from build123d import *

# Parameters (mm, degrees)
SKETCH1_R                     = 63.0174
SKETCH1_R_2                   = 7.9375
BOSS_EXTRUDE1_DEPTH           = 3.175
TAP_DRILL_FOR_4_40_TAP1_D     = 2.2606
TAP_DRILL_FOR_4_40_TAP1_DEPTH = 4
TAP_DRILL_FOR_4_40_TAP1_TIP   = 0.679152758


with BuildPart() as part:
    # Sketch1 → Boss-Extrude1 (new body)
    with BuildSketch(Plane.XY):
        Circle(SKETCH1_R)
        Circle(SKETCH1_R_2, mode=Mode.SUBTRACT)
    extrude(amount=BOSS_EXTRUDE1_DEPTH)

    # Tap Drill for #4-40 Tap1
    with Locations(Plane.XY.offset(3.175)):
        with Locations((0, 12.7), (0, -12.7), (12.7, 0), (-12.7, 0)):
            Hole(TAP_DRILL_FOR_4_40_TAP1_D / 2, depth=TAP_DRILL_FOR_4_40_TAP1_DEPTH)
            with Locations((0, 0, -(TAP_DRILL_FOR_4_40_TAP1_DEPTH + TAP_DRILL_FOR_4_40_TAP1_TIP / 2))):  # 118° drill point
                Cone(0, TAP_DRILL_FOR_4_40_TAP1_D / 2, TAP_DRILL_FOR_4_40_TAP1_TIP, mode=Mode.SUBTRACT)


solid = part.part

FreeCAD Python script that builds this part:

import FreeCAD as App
import Part
import Sketcher

V = App.Vector
Q = App.Units.Quantity

doc = App.newDocument("Part")
body = doc.addObject("PartDesign::Body", "Body")

# Sketch on XY plane
sketch1 = body.newObject("Sketcher::SketchObject", "Sketch")
sketch1.AttachmentSupport = (doc.getObject("XY_Plane"), [""])
sketch1.MapMode = "FlatFace"
sketch1.addGeometry(Part.Circle(V(0, 0, 0), V(0, 0, 1), 63.0174), False)
sketch1.addGeometry(Part.Circle(V(0, 0, 0), V(0, 0, 1), 7.9375), False)
sketch1.addConstraint(Sketcher.Constraint("Coincident", 0, 3, -1, 1))
sketch1.addConstraint(Sketcher.Constraint("Coincident", 1, 3, -1, 1))
sketch1.addConstraint(Sketcher.Constraint("Diameter", 0, Q("4.962 in")))
sketch1.addConstraint(Sketcher.Constraint("Diameter", 1, Q("0.625 in")))
pad1 = body.newObject("PartDesign::Pad", "Pad")
pad1.Profile = sketch1
pad1.Length = Q("0.125 in")

# Sketch on XY plane
sketch2 = body.newObject("Sketcher::SketchObject", "Sketch001")
sketch2.AttachmentSupport = (doc.getObject("XY_Plane"), [""])
sketch2.MapMode = "FlatFace"
sketch2.AttachmentOffset = App.Placement(V(0, 0, 0.125 * 25.4), App.Rotation())
sketch2.addGeometry(Part.Circle(V(0, 12.7, 0), V(0, 0, 1), 1.1303), False)
sketch2.addGeometry(Part.Circle(V(0, -12.7, 0), V(0, 0, 1), 1.1303), False)
sketch2.addGeometry(Part.Circle(V(12.7, 0, 0), V(0, 0, 1), 1.1303), False)
sketch2.addGeometry(Part.Circle(V(-12.7, 0, 0), V(0, 0, 1), 1.1303), False)
sketch2.addConstraint(Sketcher.Constraint("Equal", 0, 1))
sketch2.addConstraint(Sketcher.Constraint("Equal", 1, 2))
sketch2.addConstraint(Sketcher.Constraint("Equal", 2, 3))
sketch2.addConstraint(Sketcher.Constraint("Symmetric", 0, 3, 1, 3, -1, 1))
sketch2.addConstraint(Sketcher.Constraint("Symmetric", 2, 3, 3, 3, -1, 1))
sketch2.addConstraint(Sketcher.Constraint("PointOnObject", 0, 3, -2))
sketch2.addConstraint(Sketcher.Constraint("PointOnObject", 2, 3, -1))
sketch2.addConstraint(Sketcher.Constraint("Diameter", 0, Q("0.089 in")))
sketch2.addConstraint(Sketcher.Constraint("DistanceY", 1, 3, 0, 3, Q("1 in")))
sketch2.addConstraint(Sketcher.Constraint("DistanceX", 3, 3, 2, 3, Q("1 in")))
doc.recompute()
hole = body.newObject("PartDesign::Hole", "Hole")
hole.Profile = sketch2
hole.ThreadType = "None"
hole.Diameter = Q("0.089 in")
hole.DepthType = "Dimension"
hole.Depth = 4
hole.DrillPoint = "Angled"
hole.DrillPointAngle = 118

doc.recompute()
